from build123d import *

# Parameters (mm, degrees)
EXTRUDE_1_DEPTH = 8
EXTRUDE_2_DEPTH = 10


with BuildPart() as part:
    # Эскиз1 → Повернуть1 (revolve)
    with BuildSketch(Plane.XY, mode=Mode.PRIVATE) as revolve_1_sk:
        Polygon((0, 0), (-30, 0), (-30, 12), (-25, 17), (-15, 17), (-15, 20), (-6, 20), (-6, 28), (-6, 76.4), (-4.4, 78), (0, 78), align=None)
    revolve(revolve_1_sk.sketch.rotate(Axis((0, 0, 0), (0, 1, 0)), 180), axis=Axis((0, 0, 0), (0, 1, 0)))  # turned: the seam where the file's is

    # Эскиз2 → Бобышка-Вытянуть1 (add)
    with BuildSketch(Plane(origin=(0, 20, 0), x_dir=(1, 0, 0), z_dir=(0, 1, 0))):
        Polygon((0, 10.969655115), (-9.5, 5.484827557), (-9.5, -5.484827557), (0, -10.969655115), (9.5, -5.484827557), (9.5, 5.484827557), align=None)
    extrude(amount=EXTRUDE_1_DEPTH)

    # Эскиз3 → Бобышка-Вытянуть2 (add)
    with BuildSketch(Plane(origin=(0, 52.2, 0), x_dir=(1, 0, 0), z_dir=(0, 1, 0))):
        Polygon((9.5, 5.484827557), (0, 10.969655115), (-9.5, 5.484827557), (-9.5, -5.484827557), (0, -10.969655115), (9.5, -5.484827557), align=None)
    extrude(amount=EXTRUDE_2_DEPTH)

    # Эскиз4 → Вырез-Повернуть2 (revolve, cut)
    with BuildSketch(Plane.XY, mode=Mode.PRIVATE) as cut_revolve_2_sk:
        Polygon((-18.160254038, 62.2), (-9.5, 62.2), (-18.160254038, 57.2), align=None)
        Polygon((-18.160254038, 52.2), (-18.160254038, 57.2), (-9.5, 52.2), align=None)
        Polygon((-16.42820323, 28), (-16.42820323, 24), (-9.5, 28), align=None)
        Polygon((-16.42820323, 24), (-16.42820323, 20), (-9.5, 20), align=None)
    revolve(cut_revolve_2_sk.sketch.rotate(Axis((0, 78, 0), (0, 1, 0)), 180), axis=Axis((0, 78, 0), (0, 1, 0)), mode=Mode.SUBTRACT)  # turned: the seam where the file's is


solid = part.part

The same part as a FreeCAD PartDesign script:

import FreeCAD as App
import Part
import Sketcher

V = App.Vector
Q = App.Units.Quantity


def add_polygon(sketch, points):
    """Adds a closed chain of lines whose ends are joined by coincident constraints."""
    first, n = sketch.GeometryCount, len(points)
    for a, b in zip(points, points[1:] + points[:1]):
        sketch.addGeometry(Part.LineSegment(App.Vector(*a, 0), App.Vector(*b, 0)), False)
    for i in range(n):
        sketch.addConstraint(Sketcher.Constraint("Coincident", first + i, 2, first + (i + 1) % n, 1))

doc = App.newDocument("Part")
body = doc.addObject("PartDesign::Body", "Body")

sketch1 = body.newObject("Sketcher::SketchObject", "Sketch")
sketch1.AttachmentSupport = (doc.getObject("XY_Plane"), [""])
sketch1.MapMode = "FlatFace"
add_polygon(sketch1, [(-30, 0), (0, 0), (0, 78), (-4.4, 78), (-6, 76.4), (-6, 20), (-15, 20), (-15, 17), (-25, 17), (-30, 12)])
sketch1.addConstraint(Sketcher.Constraint("Horizontal", 0))
sketch1.addConstraint(Sketcher.Constraint("Vertical", 1))
sketch1.addConstraint(Sketcher.Constraint("Horizontal", 2))
sketch1.addConstraint(Sketcher.Constraint("Vertical", 4))
sketch1.addConstraint(Sketcher.Constraint("Horizontal", 5))
sketch1.addConstraint(Sketcher.Constraint("Vertical", 6))
sketch1.addConstraint(Sketcher.Constraint("Horizontal", 7))
sketch1.addConstraint(Sketcher.Constraint("Vertical", 9))
sketch1.addConstraint(Sketcher.Constraint("Coincident", 0, 2, -1, 1))
sketch1.addConstraint(Sketcher.Constraint("Parallel", 3, 8))
sketch1.addConstraint(Sketcher.Constraint("DistanceX", 0, 1, 0, 2, 30.0))
sketch1.addConstraint(Sketcher.Constraint("DistanceX", 5, 2, 5, 1, 9.0))
sketch1.addConstraint(Sketcher.Constraint("DistanceX", 7, 2, 7, 1, 10.0))
sketch1.addConstraint(Sketcher.Constraint("DistanceY", 1, 1, 1, 2, 78.0))
sketch1.addConstraint(Sketcher.Constraint("DistanceY", 6, 2, 6, 1, 3.0))
sketch1.addConstraint(Sketcher.Constraint("DistanceY", 9, 2, 9, 1, 12.0))
sketch1.addConstraint(Sketcher.Constraint("Angle", 3, Q("-135 deg")))
sketch1.addConstraint(Sketcher.Constraint("DistanceX", 2, 2, 2, 1, 4.4))
sketch1.addConstraint(Sketcher.Constraint("DistanceX", 3, 2, -1, 1, 6.0))
revolution = body.newObject("PartDesign::Revolution", "Revolution")
revolution.Profile = sketch1
revolution.ReferenceAxis = (sketch1, ["V_Axis"])
revolution.Angle = 360

sketch2 = body.newObject("Sketcher::SketchObject", "Sketch001")
sketch2.AttachmentSupport = (doc.getObject("XZ_Plane"), [""])
sketch2.MapMode = "FlatFace"
sketch2.AttachmentOffset = App.Placement(V(0, 0, -20), App.Rotation())
add_polygon(sketch2, [(0, -11), (-10, -5), (-10, 5), (0, 11), (10, 5), (10, -5)])
sketch2.addConstraint(Sketcher.Constraint("Vertical", 1))
sketch2.addConstraint(Sketcher.Constraint("Vertical", 4))
sketch2.addConstraint(Sketcher.Constraint("Symmetric", 0, 2, 3, 2, -1, 1))
sketch2.addConstraint(Sketcher.Constraint("Symmetric", 2, 2, 5, 2, -1, 1))
sketch2.addConstraint(Sketcher.Constraint("PointOnObject", 2, 2, -2))
sketch2.addConstraint(Sketcher.Constraint("Parallel", 2, 5))
sketch2.addConstraint(Sketcher.Constraint("Horizontal", 1, 2, 3, 2))
sketch2.addConstraint(Sketcher.Constraint("Angle", 0, Q("150 deg")))
sketch2.addConstraint(Sketcher.Constraint("DistanceX", 1, 2, 3, 2, 19.0))
sketch2.addConstraint(Sketcher.Constraint("DistanceY", 1, 1, 1, 2, 10.969655))
pad1 = body.newObject("PartDesign::Pad", "Pad")
pad1.Profile = sketch2
pad1.Length = 8
pad1.Reversed = True

sketch3 = body.newObject("Sketcher::SketchObject", "Sketch002")
sketch3.AttachmentSupport = (doc.getObject("XZ_Plane"), [""])
sketch3.MapMode = "FlatFace"
sketch3.AttachmentOffset = App.Placement(V(0, 0, -52.2), App.Rotation())
add_polygon(sketch3, [(10, -5), (0, -11), (-10, -5), (-10, 5), (0, 11), (10, 5)])
sketch3.addConstraint(Sketcher.Constraint("Vertical", 2))
sketch3.addConstraint(Sketcher.Constraint("Vertical", 5))
sketch3.addConstraint(Sketcher.Constraint("Symmetric", 0, 2, 3, 2, -1, 1))
sketch3.addConstraint(Sketcher.Constraint("Symmetric", 1, 2, 4, 2, -1, 1))
sketch3.addConstraint(Sketcher.Constraint("PointOnObject", 0, 2, -2))
sketch3.addConstraint(Sketcher.Constraint("Parallel", 0, 3))
sketch3.addConstraint(Sketcher.Constraint("Horizontal", 2, 2, 4, 2))
sketch3.addConstraint(Sketcher.Constraint("Angle", 0, Q("-150 deg")))
sketch3.addConstraint(Sketcher.Constraint("DistanceX", 2, 2, 4, 2, 19.0))
sketch3.addConstraint(Sketcher.Constraint("DistanceY", 2, 1, 2, 2, 10.969655))
pad2 = body.newObject("PartDesign::Pad", "Pad001")
pad2.Profile = sketch3
pad2.Length = 10
pad2.Reversed = True

sketch4 = body.newObject("Sketcher::SketchObject", "Sketch003")
sketch4.AttachmentSupport = (doc.getObject("XY_Plane"), [""])
sketch4.MapMode = "FlatFace"
add_polygon(sketch4, [(-9.5, 62.2), (-18.2, 62.2), (-18.2, 57.2)])
add_polygon(sketch4, [(-18.2, 57.2), (-18.2, 52.2), (-9.5, 52.2)])
add_polygon(sketch4, [(-16.4, 28), (-16.4, 24), (-9.5, 28)])
add_polygon(sketch4, [(-16.4, 24), (-16.4, 20), (-9.5, 20)])
sketch4.addConstraint(Sketcher.Constraint("Horizontal", 0))
sketch4.addConstraint(Sketcher.Constraint("Vertical", 1))
sketch4.addConstraint(Sketcher.Constraint("Vertical", 3))
sketch4.addConstraint(Sketcher.Constraint("Horizontal", 4))
sketch4.addConstraint(Sketcher.Constraint("Vertical", 6))
sketch4.addConstraint(Sketcher.Constraint("Horizontal", 8))
sketch4.addConstraint(Sketcher.Constraint("Vertical", 9))
sketch4.addConstraint(Sketcher.Constraint("Horizontal", 10))
sketch4.addConstraint(Sketcher.Constraint("Coincident", 5, 2, 1, 2))
sketch4.addConstraint(Sketcher.Constraint("Coincident", 11, 2, 6, 2))
sketch4.addConstraint(Sketcher.Constraint("Parallel", 2, 7))
sketch4.addConstraint(Sketcher.Constraint("Parallel", 5, 11))
sketch4.addConstraint(Sketcher.Constraint("Vertical", 2, 2, 4, 2))
sketch4.addConstraint(Sketcher.Constraint("Vertical", 4, 2, 7, 2))
sketch4.addConstraint(Sketcher.Constraint("Vertical", 7, 2, 10, 2))
sketch4.addConstraint(Sketcher.Constraint("Equal", 1, 3))
sketch4.addConstraint(Sketcher.Constraint("DistanceY", 1, 2, 1, 1, 5.0))
sketch4.addConstraint(Sketcher.Constraint("DistanceY", 6, 2, 6, 1, 4.0))
sketch4.addConstraint(Sketcher.Constraint("Angle", 2, Q("30 deg")))
sketch4.addConstraint(Sketcher.Constraint("DistanceY", -1, 1, 6, 2, 24.0))
sketch4.addConstraint(Sketcher.Constraint("DistanceY", -1, 1, 0, 2, 62.2))
sketch4.addConstraint(Sketcher.Constraint("DistanceX", 2, 2, -1, 1, 9.5))
groove = body.newObject("PartDesign::Groove", "Groove")
groove.Profile = sketch4
groove.ReferenceAxis = (sketch4, ["V_Axis"])
groove.Angle = 360

doc.recompute()
